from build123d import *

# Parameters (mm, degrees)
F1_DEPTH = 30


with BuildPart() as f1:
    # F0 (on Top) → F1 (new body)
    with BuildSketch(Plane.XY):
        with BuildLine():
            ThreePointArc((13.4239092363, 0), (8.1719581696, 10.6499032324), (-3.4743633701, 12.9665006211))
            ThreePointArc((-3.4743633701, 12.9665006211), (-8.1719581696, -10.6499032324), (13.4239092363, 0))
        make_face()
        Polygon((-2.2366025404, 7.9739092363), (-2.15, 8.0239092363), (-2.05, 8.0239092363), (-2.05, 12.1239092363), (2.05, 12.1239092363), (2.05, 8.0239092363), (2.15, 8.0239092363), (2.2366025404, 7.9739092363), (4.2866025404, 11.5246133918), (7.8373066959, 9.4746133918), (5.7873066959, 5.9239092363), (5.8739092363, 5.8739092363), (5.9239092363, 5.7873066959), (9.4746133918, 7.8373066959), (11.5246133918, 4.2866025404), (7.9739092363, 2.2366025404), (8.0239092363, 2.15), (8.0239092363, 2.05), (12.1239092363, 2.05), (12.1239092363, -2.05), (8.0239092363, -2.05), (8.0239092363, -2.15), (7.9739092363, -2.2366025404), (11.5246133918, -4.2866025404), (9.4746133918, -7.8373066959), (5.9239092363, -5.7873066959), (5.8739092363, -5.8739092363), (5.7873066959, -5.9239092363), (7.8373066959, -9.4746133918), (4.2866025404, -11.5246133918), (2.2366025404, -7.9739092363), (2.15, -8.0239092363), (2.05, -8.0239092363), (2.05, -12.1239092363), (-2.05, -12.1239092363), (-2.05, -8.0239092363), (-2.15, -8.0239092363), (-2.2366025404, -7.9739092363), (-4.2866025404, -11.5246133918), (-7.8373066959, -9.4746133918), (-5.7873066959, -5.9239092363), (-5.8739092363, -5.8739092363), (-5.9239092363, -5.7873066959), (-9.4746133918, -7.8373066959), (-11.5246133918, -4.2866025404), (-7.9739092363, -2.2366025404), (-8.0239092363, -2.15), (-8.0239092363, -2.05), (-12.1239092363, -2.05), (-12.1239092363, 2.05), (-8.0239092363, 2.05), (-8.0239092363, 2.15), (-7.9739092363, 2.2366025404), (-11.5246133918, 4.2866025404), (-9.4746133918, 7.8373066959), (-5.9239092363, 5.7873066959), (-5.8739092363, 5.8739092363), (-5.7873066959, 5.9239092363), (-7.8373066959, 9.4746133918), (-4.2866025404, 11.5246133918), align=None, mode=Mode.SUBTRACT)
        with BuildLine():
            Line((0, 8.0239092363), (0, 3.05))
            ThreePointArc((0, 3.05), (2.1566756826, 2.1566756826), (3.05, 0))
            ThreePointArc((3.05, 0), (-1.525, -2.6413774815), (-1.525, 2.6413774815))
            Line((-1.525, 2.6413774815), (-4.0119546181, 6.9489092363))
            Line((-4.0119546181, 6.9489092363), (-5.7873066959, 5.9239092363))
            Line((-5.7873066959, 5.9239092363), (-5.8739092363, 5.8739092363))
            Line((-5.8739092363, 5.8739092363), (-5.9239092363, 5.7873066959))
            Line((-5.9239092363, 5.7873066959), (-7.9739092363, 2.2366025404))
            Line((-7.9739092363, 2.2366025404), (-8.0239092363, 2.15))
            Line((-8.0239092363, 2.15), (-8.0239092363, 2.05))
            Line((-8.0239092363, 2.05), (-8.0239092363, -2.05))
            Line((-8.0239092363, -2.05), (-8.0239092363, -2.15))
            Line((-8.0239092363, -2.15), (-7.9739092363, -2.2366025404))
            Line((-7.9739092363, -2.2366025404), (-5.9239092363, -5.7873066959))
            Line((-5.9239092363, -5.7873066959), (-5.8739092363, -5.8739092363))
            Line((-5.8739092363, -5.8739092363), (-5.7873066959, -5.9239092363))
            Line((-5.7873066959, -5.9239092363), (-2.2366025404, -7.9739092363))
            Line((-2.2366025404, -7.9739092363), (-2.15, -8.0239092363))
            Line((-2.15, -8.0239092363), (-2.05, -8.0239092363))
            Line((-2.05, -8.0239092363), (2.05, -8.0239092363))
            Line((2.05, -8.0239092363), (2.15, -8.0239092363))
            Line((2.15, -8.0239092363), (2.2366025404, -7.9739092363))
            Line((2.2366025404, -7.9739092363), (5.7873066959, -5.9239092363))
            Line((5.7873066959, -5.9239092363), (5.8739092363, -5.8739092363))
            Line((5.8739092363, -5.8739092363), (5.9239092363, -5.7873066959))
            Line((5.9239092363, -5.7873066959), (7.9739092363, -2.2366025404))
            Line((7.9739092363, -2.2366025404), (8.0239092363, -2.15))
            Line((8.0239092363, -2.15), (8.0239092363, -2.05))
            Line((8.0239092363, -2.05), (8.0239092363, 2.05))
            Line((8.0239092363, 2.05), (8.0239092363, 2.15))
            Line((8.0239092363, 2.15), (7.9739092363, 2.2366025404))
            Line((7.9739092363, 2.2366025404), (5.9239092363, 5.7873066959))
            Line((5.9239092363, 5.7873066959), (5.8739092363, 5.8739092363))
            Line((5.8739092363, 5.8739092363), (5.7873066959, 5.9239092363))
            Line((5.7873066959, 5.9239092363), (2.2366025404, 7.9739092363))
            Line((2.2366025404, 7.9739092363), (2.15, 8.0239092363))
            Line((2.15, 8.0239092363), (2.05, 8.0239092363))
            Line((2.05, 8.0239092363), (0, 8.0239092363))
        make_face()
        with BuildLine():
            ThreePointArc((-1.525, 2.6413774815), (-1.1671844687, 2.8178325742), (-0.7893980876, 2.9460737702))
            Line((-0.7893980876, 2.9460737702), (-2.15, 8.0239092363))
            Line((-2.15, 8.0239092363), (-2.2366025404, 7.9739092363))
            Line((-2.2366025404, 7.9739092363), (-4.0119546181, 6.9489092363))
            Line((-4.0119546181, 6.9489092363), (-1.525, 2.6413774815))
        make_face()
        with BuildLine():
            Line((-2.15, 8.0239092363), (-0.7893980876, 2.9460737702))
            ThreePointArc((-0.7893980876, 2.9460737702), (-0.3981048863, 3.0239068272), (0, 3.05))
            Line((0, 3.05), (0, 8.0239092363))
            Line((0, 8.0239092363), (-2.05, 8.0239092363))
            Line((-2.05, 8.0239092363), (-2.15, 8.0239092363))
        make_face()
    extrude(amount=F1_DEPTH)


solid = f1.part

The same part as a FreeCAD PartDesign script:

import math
import FreeCAD as App
import Part
import Sketcher
from FreeCAD import Vector
Q = App.Units.Quantity

doc = App.newDocument("Part")
params = doc.addObject("Spreadsheet::Sheet", "Params")
for row, (alias, value) in enumerate([
    ("sketch1_radius", "3.05 mm"),
    ("sketch1_width", "4.1 mm"),
    ("sketch1_length", "4.1 mm"),
    ("pad1_length", "30 mm"),
], start=1):
    params.set(f"A{row}", alias)
    params.set(f"B{row}", "=" + value)
    params.setAlias(f"B{row}", alias)

body = doc.addObject("PartDesign::Body", "Body")

sketch1 = body.newObject("Sketcher::SketchObject", "Sketch")
sketch1.AttachmentSupport = (doc.getObject("XY_Plane"), [""])
sketch1.MapMode = "FlatFace"
sketch1.addGeometry(Part.ArcOfCircle(Part.Circle(Vector(0, 0, 0), Vector(0, 0, 1), 13.423909), math.radians(0), math.radians(105)), False)
sketch1.addGeometry(Part.ArcOfCircle(Part.Circle(Vector(0, 0, 0), Vector(0, 0, 1), 13.423909), math.radians(105), math.radians(360)), False)
sketch1.addGeometry(Part.LineSegment(Vector(-4.286603, 11.524613, 0), Vector(-2.236603, 7.973909, 0)), False)
sketch1.addGeometry(Part.LineSegment(Vector(-2.236603, 7.973909, 0), Vector(-4.011955, 6.948909, 0)), False)
sketch1.addGeometry(Part.LineSegment(Vector(-4.011955, 6.948909, 0), Vector(-5.787307, 5.923909, 0)), False)
sketch1.addGeometry(Part.LineSegment(Vector(-5.787307, 5.923909, 0), Vector(-7.837307, 9.474613, 0)), False)
sketch1.addGeometry(Part.LineSegment(Vector(-7.837307, 9.474613, 0), Vector(-4.286603, 11.524613, 0)), False)
sketch1.addGeometry(Part.LineSegment(Vector(-2.05, 8.023909, 0), Vector(-2.05, 12.123909, 0)), False)
sketch1.addGeometry(Part.LineSegment(Vector(-2.05, 12.123909, 0), Vector(2.05, 12.123909, 0)), False)
sketch1.addGeometry(Part.LineSegment(Vector(2.05, 12.123909, 0), Vector(2.05, 8.023909, 0)), False)
sketch1.addGeometry(Part.LineSegment(Vector(2.05, 8.023909, 0), Vector(-2.05, 8.023909, 0)), False)
sketch1.addGeometry(Part.ArcOfCircle(Part.Circle(Vector(0, 0, 0), Vector(0, 0, 1), 3.05), math.radians(0), math.radians(90)), False)
sketch1.addGeometry(Part.ArcOfCircle(Part.Circle(Vector(0, 0, 0), Vector(0, 0, 1), 3.05), math.radians(120), math.radians(360)), False)
sketch1.addGeometry(Part.ArcOfCircle(Part.Circle(Vector(0, 0, 0), Vector(0, 0, 1), 3.05), math.radians(105), math.radians(120)), False)
sketch1.addGeometry(Part.ArcOfCircle(Part.Circle(Vector(0, 0, 0), Vector(0, 0, 1), 3.05), math.radians(90), math.radians(105)), False)
sketch1.addGeometry(Part.LineSegment(Vector(-9.474613, 7.837307, 0), Vector(-5.923909, 5.787307, 0)), False)
sketch1.addGeometry(Part.LineSegment(Vector(-5.923909, 5.787307, 0), Vector(-7.973909, 2.236603, 0)), False)
sketch1.addGeometry(Part.LineSegment(Vector(-7.973909, 2.236603, 0), Vector(-11.524613, 4.286603, 0)), False)
sketch1.addGeometry(Part.LineSegment(Vector(-11.524613, 4.286603, 0), Vector(-9.474613, 7.837307, 0)), False)
sketch1.addGeometry(Part.LineSegment(Vector(-12.123909, 2.05, 0), Vector(-8.023909, 2.05, 0)), False)
sketch1.addGeometry(Part.LineSegment(Vector(-8.023909, 2.05, 0), Vector(-8.023909, -2.05, 0)), False)
sketch1.addGeometry(Part.LineSegment(Vector(-8.023909, -2.05, 0), Vector(-12.123909, -2.05, 0)), False)
sketch1.addGeometry(Part.LineSegment(Vector(-12.123909, -2.05, 0), Vector(-12.123909, 2.05, 0)), False)
sketch1.addGeometry(Part.LineSegment(Vector(-11.524613, -4.286603, 0), Vector(-7.973909, -2.236603, 0)), False)
sketch1.addGeometry(Part.LineSegment(Vector(-7.973909, -2.236603, 0), Vector(-5.923909, -5.787307, 0)), False)
sketch1.addGeometry(Part.LineSegment(Vector(-5.923909, -5.787307, 0), Vector(-9.474613, -7.837307, 0)), False)
sketch1.addGeometry(Part.LineSegment(Vector(-9.474613, -7.837307, 0), Vector(-11.524613, -4.286603, 0)), False)
sketch1.addGeometry(Part.LineSegment(Vector(-7.837307, -9.474613, 0), Vector(-5.787307, -5.923909, 0)), False)
sketch1.addGeometry(Part.LineSegment(Vector(-5.787307, -5.923909, 0), Vector(-2.236603, -7.973909, 0)), False)
sketch1.addGeometry(Part.LineSegment(Vector(-2.236603, -7.973909, 0), Vector(-4.286603, -11.524613, 0)), False)
sketch1.addGeometry(Part.LineSegment(Vector(-4.286603, -11.524613, 0), Vector(-7.837307, -9.474613, 0)), False)
sketch1.addGeometry(Part.LineSegment(Vector(-2.05, -12.123909, 0), Vector(-2.05, -8.023909, 0)), False)
sketch1.addGeometry(Part.LineSegment(Vector(-2.05, -8.023909, 0), Vector(2.05, -8.023909, 0)), False)
sketch1.addGeometry(Part.LineSegment(Vector(2.05, -8.023909, 0), Vector(2.05, -12.123909, 0)), False)
sketch1.addGeometry(Part.LineSegment(Vector(2.05, -12.123909, 0), Vector(-2.05, -12.123909, 0)), False)
sketch1.addGeometry(Part.LineSegment(Vector(4.286603, -11.524613, 0), Vector(2.236603, -7.973909, 0)), False)
sketch1.addGeometry(Part.LineSegment(Vector(2.236603, -7.973909, 0), Vector(5.787307, -5.923909, 0)), False)
sketch1.addGeometry(Part.LineSegment(Vector(5.787307, -5.923909, 0), Vector(7.837307, -9.474613, 0)), False)
sketch1.addGeometry(Part.LineSegment(Vector(7.837307, -9.474613, 0), Vector(4.286603, -11.524613, 0)), False)
sketch1.addGeometry(Part.LineSegment(Vector(9.474613, -7.837307, 0), Vector(5.923909, -5.787307, 0)), False)
sketch1.addGeometry(Part.LineSegment(Vector(5.923909, -5.787307, 0), Vector(7.973909, -2.236603, 0)), False)
sketch1.addGeometry(Part.LineSegment(Vector(7.973909, -2.236603, 0), Vector(11.524613, -4.286603, 0)), False)
sketch1.addGeometry(Part.LineSegment(Vector(11.524613, -4.286603, 0), Vector(9.474613, -7.837307, 0)), False)
sketch1.addGeometry(Part.LineSegment(Vector(12.123909, -2.05, 0), Vector(8.023909, -2.05, 0)), False)
sketch1.addGeometry(Part.LineSegment(Vector(8.023909, -2.05, 0), Vector(8.023909, 2.05, 0)), False)
sketch1.addGeometry(Part.LineSegment(Vector(8.023909, 2.05, 0), Vector(12.123909, 2.05, 0)), False)
sketch1.addGeometry(Part.LineSegment(Vector(12.123909, 2.05, 0), Vector(12.123909, -2.05, 0)), False)
sketch1.addGeometry(Part.LineSegment(Vector(11.524613, 4.286603, 0), Vector(7.973909, 2.236603, 0)), False)
sketch1.addGeometry(Part.LineSegment(Vector(7.973909, 2.236603, 0), Vector(5.923909, 5.787307, 0)), False)
sketch1.addGeometry(Part.LineSegment(Vector(5.923909, 5.787307, 0), Vector(9.474613, 7.837307, 0)), False)
sketch1.addGeometry(Part.LineSegment(Vector(9.474613, 7.837307, 0), Vector(11.524613, 4.286603, 0)), False)
sketch1.addGeometry(Part.LineSegment(Vector(7.837307, 9.474613, 0), Vector(5.787307, 5.923909, 0)), False)
sketch1.addGeometry(Part.LineSegment(Vector(5.787307, 5.923909, 0), Vector(2.236603, 7.973909, 0)), False)
sketch1.addGeometry(Part.LineSegment(Vector(2.236603, 7.973909, 0), Vector(4.286603, 11.524613, 0)), False)
sketch1.addGeometry(Part.LineSegment(Vector(4.286603, 11.524613, 0), Vector(7.837307, 9.474613, 0)), False)
sketch1.addConstraint(Sketcher.Constraint("Tangent", 0, 1, 1, 2))
sketch1.addConstraint(Sketcher.Constraint("Coincident", 1, 1, 0, 2))
sketch1.addConstraint(Sketcher.Constraint("Coincident", 2, 2, 3, 1))
sketch1.addConstraint(Sketcher.Constraint("Coincident", 3, 2, 4, 1))
sketch1.addConstraint(Sketcher.Constraint("Coincident", 4, 2, 5, 1))
sketch1.addConstraint(Sketcher.Constraint("Coincident", 5, 2, 6, 1))
sketch1.addConstraint(Sketcher.Constraint("Coincident", 6, 2, 2, 1))
sketch1.addConstraint(Sketcher.Constraint("Coincident", 7, 2, 8, 1))
sketch1.addConstraint(Sketcher.Constraint("Coincident", 8, 2, 9, 1))
sketch1.addConstraint(Sketcher.Constraint("Coincident", 9, 2, 10, 1))
sketch1.addConstraint(Sketcher.Constraint("Coincident", 10, 2, 7, 1))
sketch1.addConstraint(Sketcher.Constraint("Tangent", 11, 1, 12, 2))
sketch1.addConstraint(Sketcher.Constraint("Tangent", 12, 1, 13, 2))
sketch1.addConstraint(Sketcher.Constraint("Tangent", 13, 1, 14, 2))
sketch1.addConstraint(Sketcher.Constraint("Tangent", 14, 1, 11, 2))
sketch1.addConstraint(Sketcher.Constraint("Coincident", 15, 2, 16, 1))
sketch1.addConstraint(Sketcher.Constraint("Coincident", 16, 2, 17, 1))
sketch1.addConstraint(Sketcher.Constraint("Coincident", 17, 2, 18, 1))
sketch1.addConstraint(Sketcher.Constraint("Coincident", 18, 2, 15, 1))
sketch1.addConstraint(Sketcher.Constraint("Coincident", 19, 2, 20, 1))
sketch1.addConstraint(Sketcher.Constraint("Coincident", 20, 2, 21, 1))
sketch1.addConstraint(Sketcher.Constraint("Coincident", 21, 2, 22, 1))
sketch1.addConstraint(Sketcher.Constraint("Coincident", 22, 2, 19, 1))
sketch1.addConstraint(Sketcher.Constraint("Coincident", 23, 2, 24, 1))
sketch1.addConstraint(Sketcher.Constraint("Coincident", 24, 2, 25, 1))
sketch1.addConstraint(Sketcher.Constraint("Coincident", 25, 2, 26, 1))
sketch1.addConstraint(Sketcher.Constraint("Coincident", 26, 2, 23, 1))
sketch1.addConstraint(Sketcher.Constraint("Coincident", 27, 2, 28, 1))
sketch1.addConstraint(Sketcher.Constraint("Coincident", 28, 2, 29, 1))
sketch1.addConstraint(Sketcher.Constraint("Coincident", 29, 2, 30, 1))
sketch1.addConstraint(Sketcher.Constraint("Coincident", 30, 2, 27, 1))
sketch1.addConstraint(Sketcher.Constraint("Coincident", 31, 2, 32, 1))
sketch1.addConstraint(Sketcher.Constraint("Coincident", 32, 2, 33, 1))
sketch1.addConstraint(Sketcher.Constraint("Coincident", 33, 2, 34, 1))
sketch1.addConstraint(Sketcher.Constraint("Coincident", 34, 2, 31, 1))
sketch1.addConstraint(Sketcher.Constraint("Coincident", 35, 2, 36, 1))
sketch1.addConstraint(Sketcher.Constraint("Coincident", 36, 2, 37, 1))
sketch1.addConstraint(Sketcher.Constraint("Coincident", 37, 2, 38, 1))
sketch1.addConstraint(Sketcher.Constraint("Coincident", 38, 2, 35, 1))
sketch1.addConstraint(Sketcher.Constraint("Coincident", 39, 2, 40, 1))
sketch1.addConstraint(Sketcher.Constraint("Coincident", 40, 2, 41, 1))
sketch1.addConstraint(Sketcher.Constraint("Coincident", 41, 2, 42, 1))
sketch1.addConstraint(Sketcher.Constraint("Coincident", 42, 2, 39, 1))
sketch1.addConstraint(Sketcher.Constraint("Coincident", 43, 2, 44, 1))
sketch1.addConstraint(Sketcher.Constraint("Coincident", 44, 2, 45, 1))
sketch1.addConstraint(Sketcher.Constraint("Coincident", 45, 2, 46, 1))
sketch1.addConstraint(Sketcher.Constraint("Coincident", 46, 2, 43, 1))
sketch1.addConstraint(Sketcher.Constraint("Coincident", 47, 2, 48, 1))
sketch1.addConstraint(Sketcher.Constraint("Coincident", 48, 2, 49, 1))
sketch1.addConstraint(Sketcher.Constraint("Coincident", 49, 2, 50, 1))
sketch1.addConstraint(Sketcher.Constraint("Coincident", 50, 2, 47, 1))
sketch1.addConstraint(Sketcher.Constraint("Coincident", 51, 2, 52, 1))
sketch1.addConstraint(Sketcher.Constraint("Coincident", 52, 2, 53, 1))
sketch1.addConstraint(Sketcher.Constraint("Coincident", 53, 2, 54, 1))
sketch1.addConstraint(Sketcher.Constraint("Coincident", 54, 2, 51, 1))
sketch1.addConstraint(Sketcher.Constraint("Vertical", 7))
sketch1.addConstraint(Sketcher.Constraint("Horizontal", 8))
sketch1.addConstraint(Sketcher.Constraint("Vertical", 9))
sketch1.addConstraint(Sketcher.Constraint("Horizontal", 10))
sketch1.addConstraint(Sketcher.Constraint("Horizontal", 19))
sketch1.addConstraint(Sketcher.Constraint("Vertical", 20))
sketch1.addConstraint(Sketcher.Constraint("Horizontal", 21))
sketch1.addConstraint(Sketcher.Constraint("Vertical", 22))
sketch1.addConstraint(Sketcher.Constraint("Vertical", 31))
sketch1.addConstraint(Sketcher.Constraint("Horizontal", 32))
sketch1.addConstraint(Sketcher.Constraint("Vertical", 33))
sketch1.addConstraint(Sketcher.Constraint("Horizontal", 34))
sketch1.addConstraint(Sketcher.Constraint("Horizontal", 43))
sketch1.addConstraint(Sketcher.Constraint("Vertical", 44))
sketch1.addConstraint(Sketcher.Constraint("Horizontal", 45))
sketch1.addConstraint(Sketcher.Constraint("Vertical", 46))
sketch1.addConstraint(Sketcher.Constraint("Coincident", 0, 3, -1, 1))
sketch1.addConstraint(Sketcher.Constraint("Coincident", 11, 3, -1, 1))
sketch1.addConstraint(Sketcher.Constraint("Equal", 11, 12))
sketch1.addConstraint(Sketcher.Constraint("Symmetric", 9, 2, 31, 2, -1, 1))
sketch1.addConstraint(Sketcher.Constraint("Symmetric", 7, 2, 33, 2, -1, 1))
sketch1.addConstraint(Sketcher.Constraint("Symmetric", 2, 2, 35, 2, -1, 1))
sketch1.addConstraint(Sketcher.Constraint("Symmetric", 4, 2, 36, 2, -1, 1))
sketch1.addConstraint(Sketcher.Constraint("Symmetric", 5, 2, 37, 2, -1, 1))
sketch1.addConstraint(Sketcher.Constraint("Symmetric", 6, 2, 38, 2, -1, 1))
sketch1.addConstraint(Sketcher.Constraint("Symmetric", 15, 2, 39, 2, -1, 1))
sketch1.addConstraint(Sketcher.Constraint("Symmetric", 16, 2, 40, 2, -1, 1))
sketch1.addConstraint(Sketcher.Constraint("Symmetric", 17, 2, 41, 2, -1, 1))
sketch1.addConstraint(Sketcher.Constraint("Symmetric", 18, 2, 42, 2, -1, 1))
sketch1.addConstraint(Sketcher.Constraint("Symmetric", 19, 2, 43, 2, -1, 1))
sketch1.addConstraint(Sketcher.Constraint("Symmetric", 21, 2, 45, 2, -1, 1))
sketch1.addConstraint(Sketcher.Constraint("Symmetric", 23, 2, 47, 2, -1, 1))
sketch1.addConstraint(Sketcher.Constraint("Symmetric", 24, 2, 48, 2, -1, 1))
sketch1.addConstraint(Sketcher.Constraint("Symmetric", 25, 2, 49, 2, -1, 1))
sketch1.addConstraint(Sketcher.Constraint("Symmetric", 26, 2, 50, 2, -1, 1))
sketch1.addConstraint(Sketcher.Constraint("Symmetric", 27, 2, 51, 2, -1, 1))
sketch1.addConstraint(Sketcher.Constraint("Symmetric", 28, 2, 52, 2, -1, 1))
sketch1.addConstraint(Sketcher.Constraint("Symmetric", 29, 2, 53, 2, -1, 1))
sketch1.addConstraint(Sketcher.Constraint("Symmetric", 30, 2, 54, 2, -1, 1))
sketch1.addConstraint(Sketcher.Constraint("Symmetric", 28, 2, 35, 2, -2))
sketch1.addConstraint(Sketcher.Constraint("Symmetric", 27, 2, 36, 2, -2))
sketch1.addConstraint(Sketcher.Constraint("Symmetric", 30, 2, 37, 2, -2))
sketch1.addConstraint(Sketcher.Constraint("Symmetric", 29, 2, 38, 2, -2))
sketch1.addConstraint(Sketcher.Constraint("Symmetric", 24, 2, 39, 2, -2))
sketch1.addConstraint(Sketcher.Constraint("Symmetric", 23, 2, 40, 2, -2))
sketch1.addConstraint(Sketcher.Constraint("Symmetric", 26, 2, 41, 2, -2))
sketch1.addConstraint(Sketcher.Constraint("Symmetric", 25, 2, 42, 2, -2))
sketch1.addConstraint(Sketcher.Constraint("PointOnObject", 0, 1, -1))
sketch1.addConstraint(Sketcher.Constraint("PointOnObject", 11, 1, -1))
sketch1.addConstraint(Sketcher.Constraint("PointOnObject", 14, 1, -2))
sketch1.addConstraint(Sketcher.Constraint("Perpendicular", 2, 3))
sketch1.addConstraint(Sketcher.Constraint("Parallel", 3, 4))
sketch1.addConstraint(Sketcher.Constraint("Perpendicular", 4, 5))
sketch1.addConstraint(Sketcher.Constraint("Perpendicular", 5, 6))
sketch1.addConstraint(Sketcher.Constraint("Perpendicular", 15, 16))
sketch1.addConstraint(Sketcher.Constraint("Perpendicular", 16, 17))
sketch1.addConstraint(Sketcher.Constraint("Perpendicular", 17, 18))
sketch1.addConstraint(Sketcher.Constraint("Parallel", 6, 23))
sketch1.addConstraint(Sketcher.Constraint("Horizontal", 21, 2, 43, 2))
sketch1.addConstraint(Sketcher.Constraint("Vertical", 10, 2, 31, 2))
sketch1.addConstraint(Sketcher.Constraint("Equal", 10, 19))
sketch1.addConstraint(Sketcher.Constraint("Equal", 45, 7))
sketch1.addConstraint(Sketcher.Constraint("Equal", 9, 20))
sketch1.addConstraint(Sketcher.Constraint("Equal", 3, 4))
sketch1.addConstraint(Sketcher.Constraint("Equal", 5, 6))
sketch1.addConstraint(Sketcher.Constraint("Equal", 6, 15))
sketch1.addConstraint(Sketcher.Constraint("Equal", 15, 16))
sketch1.addConstraint(Sketcher.Constraint("Angle", 2, Q("-60 deg")))
sketch1.addConstraint(Sketcher.Constraint("Radius", 11, Q("3.05 mm")))
sketch1.addConstraint(Sketcher.Constraint("DistanceX", 8, 1, 8, 2, Q("4.1 mm")))
sketch1.addConstraint(Sketcher.Constraint("Distance", 2, Q("4.1 mm")))
sketch1.addConstraint(Sketcher.Constraint("Radius", 0, Q("13.423909 mm")))
sketch1.addConstraint(Sketcher.Constraint("DistanceX", 12, 1, -1, 1, Q("1.525 mm")))
sketch1.addConstraint(Sketcher.Constraint("DistanceY", -1, 1, 1, 1, Q("12.966501 mm")))
sketch1.addConstraint(Sketcher.Constraint("DistanceX", 13, 1, -1, 1, Q("0.789398 mm")))
sketch1.addConstraint(Sketcher.Constraint("DistanceY", -1, 1, 2, 2, Q("7.973909 mm")))
sketch1.addConstraint(Sketcher.Constraint("DistanceY", -1, 1, 7, 2, Q("12.123909 mm")))
sketch1.addConstraint(Sketcher.Constraint("DistanceX", 15, 2, -1, 1, Q("5.923909 mm")))
sketch1.addConstraint(Sketcher.Constraint("DistanceX", 19, 2, -1, 1, Q("8.023909 mm")))
sketch1.addConstraint(Sketcher.Constraint("DistanceX", 2, 2, -1, 1, Q("2.236603 mm")))
sketch1.addConstraint(Sketcher.Constraint("DistanceY", -1, 1, 15, 2, Q("5.787307 mm")))
sketch1.setExpression("Constraints[123]", "Params.sketch1_radius")
sketch1.setExpression("Constraints[124]", "Params.sketch1_width")
sketch1.setExpression("Constraints[125]", "Params.sketch1_length")
pad1 = body.newObject("PartDesign::Pad", "Pad")
pad1.Profile = sketch1
pad1.setExpression("Length", "Params.pad1_length")

doc.recompute()
